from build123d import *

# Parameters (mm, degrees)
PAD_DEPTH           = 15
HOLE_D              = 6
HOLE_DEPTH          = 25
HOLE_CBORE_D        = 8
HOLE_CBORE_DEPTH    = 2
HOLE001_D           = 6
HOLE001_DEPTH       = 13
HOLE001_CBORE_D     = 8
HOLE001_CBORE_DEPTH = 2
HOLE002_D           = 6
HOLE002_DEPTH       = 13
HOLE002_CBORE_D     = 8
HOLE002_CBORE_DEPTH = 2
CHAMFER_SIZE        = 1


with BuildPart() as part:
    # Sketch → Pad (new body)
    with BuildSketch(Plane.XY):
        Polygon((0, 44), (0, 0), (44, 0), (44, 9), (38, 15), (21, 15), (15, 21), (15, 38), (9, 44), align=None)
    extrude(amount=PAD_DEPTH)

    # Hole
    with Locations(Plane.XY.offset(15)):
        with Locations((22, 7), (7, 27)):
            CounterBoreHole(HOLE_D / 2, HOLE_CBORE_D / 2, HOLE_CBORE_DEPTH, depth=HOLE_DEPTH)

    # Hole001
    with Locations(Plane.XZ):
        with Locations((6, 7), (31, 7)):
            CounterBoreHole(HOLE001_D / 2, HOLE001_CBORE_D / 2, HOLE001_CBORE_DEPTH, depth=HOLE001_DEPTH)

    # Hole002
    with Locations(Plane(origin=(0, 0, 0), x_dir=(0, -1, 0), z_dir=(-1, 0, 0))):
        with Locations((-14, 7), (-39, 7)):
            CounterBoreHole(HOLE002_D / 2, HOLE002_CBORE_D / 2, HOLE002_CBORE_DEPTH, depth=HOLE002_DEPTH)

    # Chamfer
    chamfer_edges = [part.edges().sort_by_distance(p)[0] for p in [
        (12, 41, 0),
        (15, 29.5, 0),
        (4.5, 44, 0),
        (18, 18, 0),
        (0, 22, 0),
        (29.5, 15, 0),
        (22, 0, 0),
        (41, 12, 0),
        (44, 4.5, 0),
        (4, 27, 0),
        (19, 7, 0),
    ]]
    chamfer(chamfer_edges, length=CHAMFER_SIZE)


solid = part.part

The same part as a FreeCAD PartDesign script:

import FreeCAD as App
import Part
import Sketcher

V = App.Vector
Q = App.Units.Quantity


def edges_at(feature, points):
    """Names of the edges that pass closest to the given points."""
    edges = feature.Shape.Edges
    near = lambda p: min(range(len(edges)), key=lambda i: edges[i].distToShape(Part.Vertex(*p))[0])
    return sorted({f"Edge{near(p) + 1}" for p in points})

doc = App.newDocument("Part")
body = doc.addObject("PartDesign::Body", "Body")

sketch1 = body.newObject("Sketcher::SketchObject", "Sketch")
sketch1.AttachmentSupport = (doc.getObject("XY_Plane"), [""])
sketch1.MapMode = "FlatFace"
sketch1.addGeometry(Part.LineSegment(V(0, 44, 0), V(0, 0, 0)), False)
sketch1.addGeometry(Part.LineSegment(V(0, 0, 0), V(44, 0, 0)), False)
sketch1.addGeometry(Part.LineSegment(V(44, 0, 0), V(44, 9, 0)), False)
sketch1.addGeometry(Part.LineSegment(V(44, 9, 0), V(38, 15, 0)), False)
sketch1.addGeometry(Part.LineSegment(V(38, 15, 0), V(21, 15, 0)), False)
sketch1.addGeometry(Part.LineSegment(V(21, 15, 0), V(15, 21, 0)), False)
sketch1.addGeometry(Part.LineSegment(V(15, 21, 0), V(15, 38, 0)), False)
sketch1.addGeometry(Part.LineSegment(V(15, 38, 0), V(9, 44, 0)), False)
sketch1.addGeometry(Part.LineSegment(V(9, 44, 0), V(0, 44, 0)), False)
sketch1.addConstraint(Sketcher.Constraint("Coincident", 0, 2, 1, 1))
sketch1.addConstraint(Sketcher.Constraint("Coincident", 1, 2, 2, 1))
sketch1.addConstraint(Sketcher.Constraint("Coincident", 2, 2, 3, 1))
sketch1.addConstraint(Sketcher.Constraint("Coincident", 3, 2, 4, 1))
sketch1.addConstraint(Sketcher.Constraint("Coincident", 4, 2, 5, 1))
sketch1.addConstraint(Sketcher.Constraint("Coincident", 5, 2, 6, 1))
sketch1.addConstraint(Sketcher.Constraint("Coincident", 6, 2, 7, 1))
sketch1.addConstraint(Sketcher.Constraint("Coincident", 7, 2, 8, 1))
sketch1.addConstraint(Sketcher.Constraint("Coincident", 8, 2, 0, 1))
sketch1.addConstraint(Sketcher.Constraint("Vertical", 0))
sketch1.addConstraint(Sketcher.Constraint("Horizontal", 1))
sketch1.addConstraint(Sketcher.Constraint("Vertical", 2))
sketch1.addConstraint(Sketcher.Constraint("Horizontal", 4))
sketch1.addConstraint(Sketcher.Constraint("Vertical", 6))
sketch1.addConstraint(Sketcher.Constraint("Horizontal", 8))
sketch1.addConstraint(Sketcher.Constraint("Coincident", 0, 2, -1, 1))
sketch1.addConstraint(Sketcher.Constraint("Parallel", 3, 5))
sketch1.addConstraint(Sketcher.Constraint("Parallel", 5, 7))
sketch1.addConstraint(Sketcher.Constraint("Equal", 1, 0))
sketch1.addConstraint(Sketcher.Constraint("Equal", 8, 2))
sketch1.addConstraint(Sketcher.Constraint("Equal", 4, 6))
sketch1.addConstraint(Sketcher.Constraint("Equal", 3, 5))
sketch1.addConstraint(Sketcher.Constraint("Equal", 5, 7))
sketch1.addConstraint(Sketcher.Constraint("DistanceX", 1, 1, 1, 2, Q("44 mm")))
sketch1.addConstraint(Sketcher.Constraint("DistanceX", 4, 2, 4, 1, Q("17 mm")))
sketch1.addConstraint(Sketcher.Constraint("DistanceX", 8, 2, 8, 1, Q("9 mm")))
pad1 = body.newObject("PartDesign::Pad", "Pad")
pad1.Profile = sketch1
pad1.Length = 15

sketch2 = body.newObject("Sketcher::SketchObject", "Sketch001")
sketch2.AttachmentSupport = (doc.getObject("XY_Plane"), [""])
sketch2.MapMode = "FlatFace"
sketch2.AttachmentOffset = App.Placement(V(0, 0, 15), App.Rotation())
sketch2.addGeometry(Part.Circle(V(22, 7, 0), V(0, 0, 1), 3), False)
sketch2.addGeometry(Part.Circle(V(7, 27, 0), V(0, 0, 1), 3), False)
sketch2.addConstraint(Sketcher.Constraint("Equal", 0, 1))
sketch2.addConstraint(Sketcher.Constraint("Diameter", 0, Q("6 mm")))
sketch2.addConstraint(Sketcher.Constraint("DistanceX", -1, 1, 0, 3, Q("22 mm")))
sketch2.addConstraint(Sketcher.Constraint("DistanceY", -1, 1, 0, 3, Q("7 mm")))
sketch2.addConstraint(Sketcher.Constraint("DistanceX", -1, 1, 1, 3, Q("7 mm")))
sketch2.addConstraint(Sketcher.Constraint("DistanceY", -1, 1, 1, 3, Q("27 mm")))
doc.recompute()
hole = body.newObject("PartDesign::Hole", "Hole")
hole.Profile = sketch2
hole.ThreadType = "None"
hole.Diameter = 6
hole.DepthType = "Dimension"
hole.Depth = 25
hole.DrillPoint = "Flat"
hole.HoleCutType = "Counterbore"
hole.HoleCutDiameter = 8
hole.HoleCutDepth = 2

sketch3 = body.newObject("Sketcher::SketchObject", "Sketch002")
sketch3.AttachmentSupport = (doc.getObject("XZ_Plane"), [""])
sketch3.MapMode = "FlatFace"
sketch3.addGeometry(Part.Circle(V(6, 7, 0), V(0, 0, 1), 3), False)
sketch3.addGeometry(Part.Circle(V(31, 7, 0), V(0, 0, 1), 3), False)
sketch3.addConstraint(Sketcher.Constraint("Equal", 0, 1))
sketch3.addConstraint(Sketcher.Constraint("Horizontal", 0, 3, 1, 3))
sketch3.addConstraint(Sketcher.Constraint("Diameter", 0, Q("6 mm")))
sketch3.addConstraint(Sketcher.Constraint("DistanceX", -1, 1, 0, 3, Q("6 mm")))
sketch3.addConstraint(Sketcher.Constraint("DistanceY", -1, 1, 0, 3, Q("7 mm")))
sketch3.addConstraint(Sketcher.Constraint("DistanceX", -1, 1, 1, 3, Q("31 mm")))
doc.recompute()
hole2 = body.newObject("PartDesign::Hole", "Hole001")
hole2.Profile = sketch3
hole2.ThreadType = "None"
hole2.Diameter = 6
hole2.DepthType = "Dimension"
hole2.Depth = 13
hole2.DrillPoint = "Flat"
hole2.HoleCutType = "Counterbore"
hole2.HoleCutDiameter = 8
hole2.HoleCutDepth = 2

sketch4 = body.newObject("Sketcher::SketchObject", "Sketch003")
sketch4.AttachmentSupport = (doc.getObject("YZ_Plane"), [""])
sketch4.MapMode = "FlatFace"
sketch4.addGeometry(Part.Circle(V(14, 7, 0), V(0, 0, 1), 3), False)
sketch4.addGeometry(Part.Circle(V(39, 7, 0), V(0, 0, 1), 3), False)
sketch4.addConstraint(Sketcher.Constraint("Equal", 0, 1))
sketch4.addConstraint(Sketcher.Constraint("Horizontal", 0, 3, 1, 3))
sketch4.addConstraint(Sketcher.Constraint("Diameter", 0, Q("6 mm")))
sketch4.addConstraint(Sketcher.Constraint("DistanceX", -1, 1, 0, 3, Q("14 mm")))
sketch4.addConstraint(Sketcher.Constraint("DistanceY", -1, 1, 0, 3, Q("7 mm")))
sketch4.addConstraint(Sketcher.Constraint("DistanceX", -1, 1, 1, 3, Q("39 mm")))
doc.recompute()
hole3 = body.newObject("PartDesign::Hole", "Hole002")
hole3.Profile = sketch4
hole3.ThreadType = "None"
hole3.Diameter = 6
hole3.DepthType = "Dimension"
hole3.Depth = 13
hole3.DrillPoint = "Flat"
hole3.HoleCutType = "Counterbore"
hole3.HoleCutDiameter = 8
hole3.HoleCutDepth = 2
hole3.Reversed = True
doc.recompute()

chamfer = body.newObject("PartDesign::Chamfer", "Chamfer")
chamfer.Base = (hole3, edges_at(hole3, [
    (12, 41, 0),
    (15, 29.5, 0),
    (4.5, 44, 0),
    (18, 18, 0),
    (0, 22, 0),
    (29.5, 15, 0),
    (22, 0, 0),
    (41, 12, 0),
    (44, 4.5, 0),
    (10, 27, 0),
    (25, 7, 0),
]))
chamfer.Size = 1

doc.recompute()
